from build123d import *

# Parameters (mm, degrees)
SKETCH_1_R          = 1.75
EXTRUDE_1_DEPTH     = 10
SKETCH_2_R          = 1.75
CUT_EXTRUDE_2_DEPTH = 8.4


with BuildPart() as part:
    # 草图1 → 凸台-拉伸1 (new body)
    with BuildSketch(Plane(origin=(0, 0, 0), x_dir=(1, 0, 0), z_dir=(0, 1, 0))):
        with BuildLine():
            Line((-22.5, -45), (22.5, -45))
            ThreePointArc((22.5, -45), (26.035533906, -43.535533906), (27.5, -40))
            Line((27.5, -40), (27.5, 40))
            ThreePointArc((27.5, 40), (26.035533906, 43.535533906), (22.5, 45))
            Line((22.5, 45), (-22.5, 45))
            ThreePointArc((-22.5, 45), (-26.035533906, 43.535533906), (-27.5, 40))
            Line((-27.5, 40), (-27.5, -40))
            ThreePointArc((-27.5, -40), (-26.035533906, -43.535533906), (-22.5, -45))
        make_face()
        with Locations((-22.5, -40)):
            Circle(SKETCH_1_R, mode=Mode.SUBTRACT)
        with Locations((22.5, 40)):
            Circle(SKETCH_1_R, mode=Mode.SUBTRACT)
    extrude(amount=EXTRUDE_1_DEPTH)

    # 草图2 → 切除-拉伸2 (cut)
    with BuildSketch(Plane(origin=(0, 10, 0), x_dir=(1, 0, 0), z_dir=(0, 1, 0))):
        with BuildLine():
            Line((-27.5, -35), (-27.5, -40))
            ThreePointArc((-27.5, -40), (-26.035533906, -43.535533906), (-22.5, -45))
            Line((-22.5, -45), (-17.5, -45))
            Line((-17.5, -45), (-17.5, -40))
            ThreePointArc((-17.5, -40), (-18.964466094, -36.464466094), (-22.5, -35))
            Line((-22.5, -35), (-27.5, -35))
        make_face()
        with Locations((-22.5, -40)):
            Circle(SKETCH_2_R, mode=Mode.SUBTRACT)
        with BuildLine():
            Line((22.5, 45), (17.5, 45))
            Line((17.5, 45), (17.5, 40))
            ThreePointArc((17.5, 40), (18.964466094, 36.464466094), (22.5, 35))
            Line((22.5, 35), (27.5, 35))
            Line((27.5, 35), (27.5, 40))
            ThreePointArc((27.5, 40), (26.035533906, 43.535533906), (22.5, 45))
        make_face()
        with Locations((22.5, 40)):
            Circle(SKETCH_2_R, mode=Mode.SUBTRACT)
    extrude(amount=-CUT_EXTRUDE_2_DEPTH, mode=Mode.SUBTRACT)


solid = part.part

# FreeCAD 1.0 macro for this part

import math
import FreeCAD as App
import Part
import Sketcher
Q = App.Units.Quantity

doc = App.newDocument("Part")
params = doc.addObject("Spreadsheet::Sheet", "Params")
for row, (alias, value) in enumerate([
    ("sketch1_radius", "5 mm"),
    ("sketch1_diameter", "3.5 mm"),
    ("sketch1_width", "45 mm"),
    ("sketch1_height", "80 mm"),
    ("pad1_length", "10 mm"),
    ("sketch2_radius", "5 mm"),
    ("sketch2_diameter", "3.5 mm"),
    ("pocket1_length", "8.4 mm"),
], start=1):
    params.set(f"A{row}", alias)
    params.set(f"B{row}", "=" + value)
    params.setAlias(f"B{row}", alias)

body = doc.addObject("PartDesign::Body", "Body")

# Sketch on XZ plane
sketch1 = body.newObject("Sketcher::SketchObject", "Sketch")
sketch1.AttachmentSupport = (doc.getObject("XZ_Plane"), [""])
sketch1.MapMode = "FlatFace"
sketch1.addGeometry([
    Part.LineSegment(App.Vector(-22.5, 45, 0), App.Vector(22.5, 45, 0)),  # 0
    Part.ArcOfCircle(Part.Circle(App.Vector(22.5, 40, 0), App.Vector(0, 0, 1), 5), math.radians(0), math.radians(90)),  # 1
    Part.LineSegment(App.Vector(27.5, 40, 0), App.Vector(27.5, -40, 0)),  # 2
    Part.ArcOfCircle(Part.Circle(App.Vector(22.5, -40, 0), App.Vector(0, 0, 1), 5), math.radians(-90), math.radians(0)),  # 3
    Part.LineSegment(App.Vector(22.5, -45, 0), App.Vector(-22.5, -45, 0)),  # 4
    Part.ArcOfCircle(Part.Circle(App.Vector(-22.5, -40, 0), App.Vector(0, 0, 1), 5), math.radians(180), math.radians(270)),  # 5
    Part.LineSegment(App.Vector(-27.5, -40, 0), App.Vector(-27.5, 40, 0)),  # 6
    Part.ArcOfCircle(Part.Circle(App.Vector(-22.5, 40, 0), App.Vector(0, 0, 1), 5), math.radians(90), math.radians(180)),  # 7
    Part.Circle(App.Vector(-22.5, 40, 0), App.Vector(0, 0, 1), 1.8),  # 8
    Part.Circle(App.Vector(22.5, -40, 0), App.Vector(0, 0, 1), 1.8),  # 9
], False)
sketch1.addConstraint([
    Sketcher.Constraint("Tangent", 0, 2, 1, 2),
    Sketcher.Constraint("Tangent", 1, 1, 2, 1),
    Sketcher.Constraint("Tangent", 2, 2, 3, 2),
    Sketcher.Constraint("Tangent", 3, 1, 4, 1),
    Sketcher.Constraint("Tangent", 4, 2, 5, 2),
    Sketcher.Constraint("Tangent", 5, 1, 6, 1),
    Sketcher.Constraint("Tangent", 6, 2, 7, 2),
    Sketcher.Constraint("Tangent", 7, 1, 0, 1),
    Sketcher.Constraint("Horizontal", 0),
    Sketcher.Constraint("Vertical", 2),
    Sketcher.Constraint("Horizontal", 4),
    Sketcher.Constraint("Vertical", 6),
    Sketcher.Constraint("Coincident", 8, 3, 7, 3),
    Sketcher.Constraint("Coincident", 9, 3, 3, 3),
    Sketcher.Constraint("Equal", 1, 3),
    Sketcher.Constraint("Equal", 3, 5),
    Sketcher.Constraint("Equal", 5, 7),
    Sketcher.Constraint("Equal", 8, 9),
    Sketcher.Constraint("Symmetric", 1, 3, 5, 3, -1, 1),
    Sketcher.Constraint("Radius", 1, Q("5 mm")),
    Sketcher.Constraint("Diameter", 8, Q("3.5 mm")),
    Sketcher.Constraint("DistanceX", 0, 1, 0, 2, Q("45 mm")),
    Sketcher.Constraint("DistanceY", 2, 2, 2, 1, Q("80 mm")),
])
sketch1.setExpression("Constraints[19]", "Params.sketch1_radius")
sketch1.setExpression("Constraints[20]", "Params.sketch1_diameter")
sketch1.setExpression("Constraints[21]", "Params.sketch1_width")
sketch1.setExpression("Constraints[22]", "Params.sketch1_height")
pad1 = body.newObject("PartDesign::Pad", "Pad")
pad1.Profile = sketch1
pad1.setExpression("Length", "Params.pad1_length")
pad1.Reversed = True

# Sketch on XZ plane
sketch2 = body.newObject("Sketcher::SketchObject", "Sketch001")
sketch2.AttachmentSupport = (doc.getObject("XZ_Plane"), [""])
sketch2.MapMode = "FlatFace"
sketch2.AttachmentOffset = App.Placement(App.Vector(0, 0, -10), App.Rotation())
sketch2.addGeometry([
    Part.LineSegment(App.Vector(-27.5, 35, 0), App.Vector(-27.5, 40, 0)),  # 0
    Part.ArcOfCircle(Part.Circle(App.Vector(-22.5, 40, 0), App.Vector(0, 0, 1), 5), math.radians(90), math.radians(180)),  # 1
    Part.LineSegment(App.Vector(-22.5, 45, 0), App.Vector(-17.5, 45, 0)),  # 2
    Part.LineSegment(App.Vector(-17.5, 45, 0), App.Vector(-17.5, 40, 0)),  # 3
    Part.ArcOfCircle(Part.Circle(App.Vector(-22.5, 40, 0), App.Vector(0, 0, 1), 5), math.radians(-90), math.radians(0)),  # 4
    Part.LineSegment(App.Vector(-22.5, 35, 0), App.Vector(-27.5, 35, 0)),  # 5
    Part.Circle(App.Vector(-22.5, 40, 0), App.Vector(0, 0, 1), 1.8),  # 6
    Part.LineSegment(App.Vector(22.5, -45, 0), App.Vector(17.5, -45, 0)),  # 7
    Part.LineSegment(App.Vector(17.5, -45, 0), App.Vector(17.5, -40, 0)),  # 8
    Part.ArcOfCircle(Part.Circle(App.Vector(22.5, -40, 0), App.Vector(0, 0, 1), 5), math.radians(90), math.radians(180)),  # 9
    Part.LineSegment(App.Vector(22.5, -35, 0), App.Vector(27.5, -35, 0)),  # 10
    Part.LineSegment(App.Vector(27.5, -35, 0), App.Vector(27.5, -40, 0)),  # 11
    Part.ArcOfCircle(Part.Circle(App.Vector(22.5, -40, 0), App.Vector(0, 0, 1), 5), math.radians(-90), math.radians(0)),  # 12
    Part.Circle(App.Vector(22.5, -40, 0), App.Vector(0, 0, 1), 1.8),  # 13
], False)
sketch2.addConstraint([
    Sketcher.Constraint("Tangent", 0, 2, 1, 2),
    Sketcher.Constraint("Tangent", 1, 1, 2, 1),
    Sketcher.Constraint("Coincident", 2, 2, 3, 1),
    Sketcher.Constraint("Tangent", 3, 2, 4, 2),
    Sketcher.Constraint("Tangent", 4, 1, 5, 1),
    Sketcher.Constraint("Coincident", 5, 2, 0, 1),
    Sketcher.Constraint("Coincident", 7, 2, 8, 1),
    Sketcher.Constraint("Tangent", 8, 2, 9, 2),
    Sketcher.Constraint("Tangent", 9, 1, 10, 1),
    Sketcher.Constraint("Coincident", 10, 2, 11, 1),
    Sketcher.Constraint("Tangent", 11, 2, 12, 2),
    Sketcher.Constraint("Tangent", 12, 1, 7, 1),
    Sketcher.Constraint("Vertical", 0),
    Sketcher.Constraint("Horizontal", 2),
    Sketcher.Constraint("Vertical", 3),
    Sketcher.Constraint("Horizontal", 5),
    Sketcher.Constraint("Horizontal", 7),
    Sketcher.Constraint("Vertical", 8),
    Sketcher.Constraint("Horizontal", 10),
    Sketcher.Constraint("Vertical", 11),
    Sketcher.Constraint("Coincident", 4, 3, 1, 3),
    Sketcher.Constraint("Coincident", 6, 3, 1, 3),
    Sketcher.Constraint("Coincident", 12, 3, 9, 3),
    Sketcher.Constraint("Coincident", 13, 3, 9, 3),
    Sketcher.Constraint("Equal", 1, 4),
    Sketcher.Constraint("Equal", 4, 9),
    Sketcher.Constraint("Equal", 9, 12),
    Sketcher.Constraint("Equal", 6, 13),
    Sketcher.Constraint("Symmetric", 1, 3, 9, 3, -1, 1),
    Sketcher.Constraint("Radius", 1, Q("5 mm")),
    Sketcher.Constraint("Diameter", 6, Q("3.5 mm")),
    Sketcher.Constraint("DistanceY", -1, 1, 1, 3, Q("40 mm")),
    Sketcher.Constraint("DistanceX", 1, 3, 9, 3, Q("45 mm")),
])
sketch2.setExpression("Constraints[29]", "Params.sketch2_radius")
sketch2.setExpression("Constraints[30]", "Params.sketch2_diameter")
pocket1 = body.newObject("PartDesign::Pocket", "Pocket")
pocket1.Profile = sketch2
pocket1.setExpression("Length", "Params.pocket1_length")
pocket1.Reversed = True

doc.recompute()
